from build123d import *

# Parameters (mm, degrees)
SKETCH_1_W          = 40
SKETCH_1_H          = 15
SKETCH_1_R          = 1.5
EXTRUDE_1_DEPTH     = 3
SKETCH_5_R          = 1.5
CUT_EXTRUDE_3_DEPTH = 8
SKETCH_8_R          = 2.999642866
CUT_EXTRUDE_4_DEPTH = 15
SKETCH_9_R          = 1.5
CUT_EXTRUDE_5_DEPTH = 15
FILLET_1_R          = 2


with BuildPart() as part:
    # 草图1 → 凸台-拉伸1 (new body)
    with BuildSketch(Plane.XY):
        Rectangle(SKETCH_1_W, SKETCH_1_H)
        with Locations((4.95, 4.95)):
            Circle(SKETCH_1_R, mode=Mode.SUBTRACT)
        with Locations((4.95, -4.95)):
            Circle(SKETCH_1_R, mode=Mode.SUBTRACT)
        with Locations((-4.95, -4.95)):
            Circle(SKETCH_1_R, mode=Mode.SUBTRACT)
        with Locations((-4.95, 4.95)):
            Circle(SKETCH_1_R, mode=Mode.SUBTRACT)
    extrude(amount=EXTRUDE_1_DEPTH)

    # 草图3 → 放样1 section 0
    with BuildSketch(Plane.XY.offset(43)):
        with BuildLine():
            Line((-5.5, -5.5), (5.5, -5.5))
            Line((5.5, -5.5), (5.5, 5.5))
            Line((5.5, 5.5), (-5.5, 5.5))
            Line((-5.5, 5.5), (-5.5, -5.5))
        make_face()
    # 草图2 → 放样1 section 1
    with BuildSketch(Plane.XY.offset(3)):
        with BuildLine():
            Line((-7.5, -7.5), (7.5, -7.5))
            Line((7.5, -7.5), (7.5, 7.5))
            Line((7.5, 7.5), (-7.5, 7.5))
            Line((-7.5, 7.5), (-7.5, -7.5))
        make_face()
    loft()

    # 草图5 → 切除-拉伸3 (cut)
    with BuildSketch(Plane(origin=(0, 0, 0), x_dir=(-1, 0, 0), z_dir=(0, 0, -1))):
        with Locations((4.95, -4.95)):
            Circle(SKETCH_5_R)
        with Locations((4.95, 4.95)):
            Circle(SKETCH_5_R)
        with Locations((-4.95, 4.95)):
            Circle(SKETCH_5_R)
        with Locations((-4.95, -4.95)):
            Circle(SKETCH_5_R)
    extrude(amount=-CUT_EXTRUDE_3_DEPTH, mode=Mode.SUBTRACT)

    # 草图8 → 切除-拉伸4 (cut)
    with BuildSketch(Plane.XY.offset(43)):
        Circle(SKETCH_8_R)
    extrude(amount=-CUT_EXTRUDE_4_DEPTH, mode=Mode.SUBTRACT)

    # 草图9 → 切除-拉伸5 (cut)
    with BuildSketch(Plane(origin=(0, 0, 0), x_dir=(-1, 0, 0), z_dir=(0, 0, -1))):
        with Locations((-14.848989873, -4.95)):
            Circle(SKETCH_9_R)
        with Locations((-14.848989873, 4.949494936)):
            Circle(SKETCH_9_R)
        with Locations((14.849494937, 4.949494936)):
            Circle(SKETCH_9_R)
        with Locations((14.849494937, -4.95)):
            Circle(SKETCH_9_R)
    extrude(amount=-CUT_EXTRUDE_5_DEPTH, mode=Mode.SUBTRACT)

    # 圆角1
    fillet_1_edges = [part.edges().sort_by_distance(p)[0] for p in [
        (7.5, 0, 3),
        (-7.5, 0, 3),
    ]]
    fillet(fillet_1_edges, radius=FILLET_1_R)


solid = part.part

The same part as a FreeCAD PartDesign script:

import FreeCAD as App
import Part
import Sketcher
from FreeCAD import Vector
Q = App.Units.Quantity


def edges_at(feature, points):
    """Names of the edges that pass closest to the given points."""
    edges = feature.Shape.Edges
    near = lambda p: min(range(len(edges)), key=lambda i: edges[i].distToShape(Part.Vertex(*p))[0])
    return sorted({f"Edge{near(p) + 1}" for p in points})

doc = App.newDocument("Part")
body = doc.addObject("PartDesign::Body", "Body")

# Sketch on XY plane
sketch1 = doc.addObject("Sketcher::SketchObject", "Sketch")
body.addObject(sketch1)
sketch1.AttachmentSupport = (doc.XY_Plane, [""])
sketch1.MapMode = "FlatFace"
sketch1.addGeometry([
    Part.LineSegment(Vector(-20, 7.5, 0), Vector(-20, -7.5, 0)),  # 0
    Part.LineSegment(Vector(-20, -7.5, 0), Vector(20, -7.5, 0)),  # 1
    Part.LineSegment(Vector(20, -7.5, 0), Vector(20, 7.5, 0)),  # 2
    Part.LineSegment(Vector(20, 7.5, 0), Vector(-20, 7.5, 0)),  # 3
    Part.Circle(Vector(-5, -5, 0), Vector(0, 0, 1), 1.5),  # 4
    Part.Circle(Vector(5, -5, 0), Vector(0, 0, 1), 1.5),  # 5
    Part.Circle(Vector(-5, 5, 0), Vector(0, 0, 1), 1.5),  # 6
    Part.Circle(Vector(5, 5, 0), Vector(0, 0, 1), 1.5),  # 7
], False)
sketch1.addConstraint([
    Sketcher.Constraint("Coincident", 0, 2, 1, 1),
    Sketcher.Constraint("Coincident", 1, 2, 2, 1),
    Sketcher.Constraint("Coincident", 2, 2, 3, 1),
    Sketcher.Constraint("Coincident", 3, 2, 0, 1),
    Sketcher.Constraint("Vertical", 0),
    Sketcher.Constraint("Horizontal", 1),
    Sketcher.Constraint("Vertical", 2),
    Sketcher.Constraint("Horizontal", 3),
    Sketcher.Constraint("Equal", 4, 5),
    Sketcher.Constraint("Equal", 5, 6),
    Sketcher.Constraint("Equal", 6, 7),
    Sketcher.Constraint("Symmetric", 5, 3, 6, 3, -1, 1),
    Sketcher.Constraint("Symmetric", 4, 3, 7, 3, -1, 1),
    Sketcher.Constraint("Symmetric", 0, 2, 2, 2, -1, 1),
    Sketcher.Constraint("Symmetric", 4, 3, 5, 3, -2),
    Sketcher.Constraint("Diameter", 4, Q("3 mm")),
    Sketcher.Constraint("DistanceX", 1, 1, 1, 2, Q("40 mm")),
    Sketcher.Constraint("DistanceY", 0, 2, 0, 1, Q("15 mm")),
    Sketcher.Constraint("DistanceX", 4, 3, 5, 3, Q("9.9 mm")),
    Sketcher.Constraint("DistanceY", 4, 3, 6, 3, Q("9.9 mm")),
])
pad1 = doc.addObject("PartDesign::Pad", "Pad")
body.addObject(pad1)
pad1.Profile = sketch1
pad1.Length = 3

# Sketch on XY plane
sketch2 = doc.addObject("Sketcher::SketchObject", "Sketch001")
body.addObject(sketch2)
sketch2.AttachmentSupport = (doc.XY_Plane, [""])
sketch2.MapMode = "FlatFace"
sketch2.AttachmentOffset = App.Placement(Vector(0, 0, 43), App.Rotation())
sketch2.addGeometry([
    Part.LineSegment(Vector(-6, -6, 0), Vector(6, -6, 0)),
    Part.LineSegment(Vector(6, -6, 0), Vector(6, 6, 0)),
    Part.LineSegment(Vector(6, 6, 0), Vector(-6, 6, 0)),
    Part.LineSegment(Vector(-6, 6, 0), Vector(-6, -6, 0)),
], False)
sketch2.addConstraint([
    Sketcher.Constraint("Coincident", 0, 2, 1, 1),
    Sketcher.Constraint("Coincident", 1, 2, 2, 1),
    Sketcher.Constraint("Coincident", 2, 2, 3, 1),
    Sketcher.Constraint("Coincident", 3, 2, 0, 1),
    Sketcher.Constraint("Horizontal", 0),
    Sketcher.Constraint("Vertical", 1),
    Sketcher.Constraint("Horizontal", 2),
    Sketcher.Constraint("Vertical", 3),
    Sketcher.Constraint("Symmetric", 0, 2, 2, 2, -1, 1),
    Sketcher.Constraint("Equal", 2, 1),
    Sketcher.Constraint("DistanceX", 0, 1, 0, 2, Q("11 mm")),
])

# Sketch on XY plane
sketch3 = doc.addObject("Sketcher::SketchObject", "Sketch002")
body.addObject(sketch3)
sketch3.AttachmentSupport = (doc.XY_Plane, [""])
sketch3.MapMode = "FlatFace"
sketch3.AttachmentOffset = App.Placement(Vector(0, 0, 3), App.Rotation())
sketch3.addGeometry([
    Part.LineSegment(Vector(-8, -8, 0), Vector(8, -8, 0)),
    Part.LineSegment(Vector(8, -8, 0), Vector(8, 8, 0)),
    Part.LineSegment(Vector(8, 8, 0), Vector(-8, 8, 0)),
    Part.LineSegment(Vector(-8, 8, 0), Vector(-8, -8, 0)),
], False)
sketch3.addConstraint([
    Sketcher.Constraint("Coincident", 0, 2, 1, 1),
    Sketcher.Constraint("Coincident", 1, 2, 2, 1),
    Sketcher.Constraint("Coincident", 2, 2, 3, 1),
    Sketcher.Constraint("Coincident", 3, 2, 0, 1),
    Sketcher.Constraint("Horizontal", 0),
    Sketcher.Constraint("Vertical", 1),
    Sketcher.Constraint("Horizontal", 2),
    Sketcher.Constraint("Vertical", 3),
    Sketcher.Constraint("Symmetric", 0, 2, 2, 2, -1, 1),
    Sketcher.Constraint("Equal", 2, 1),
    Sketcher.Constraint("DistanceX", 0, 1, 0, 2, Q("15 mm")),
])

additiveloft = doc.addObject("PartDesign::AdditiveLoft", "AdditiveLoft")
body.addObject(additiveloft)
additiveloft.Profile = sketch2
additiveloft.Sections = [sketch3]

# Sketch on XY plane
sketch4 = doc.addObject("Sketcher::SketchObject", "Sketch003")
body.addObject(sketch4)
sketch4.AttachmentSupport = (doc.XY_Plane, [""])
sketch4.MapMode = "FlatFace"
sketch4.addGeometry([
    Part.Circle(Vector(-5, -5, 0), Vector(0, 0, 1), 1.5),
    Part.Circle(Vector(-5, 5, 0), Vector(0, 0, 1), 1.5),
    Part.Circle(Vector(5, 5, 0), Vector(0, 0, 1), 1.5),
    Part.Circle(Vector(5, -5, 0), Vector(0, 0, 1), 1.5),
], False)
sketch4.addConstraint([
    Sketcher.Constraint("Equal", 0, 1),
    Sketcher.Constraint("Equal", 1, 2),
    Sketcher.Constraint("Equal", 2, 3),
    Sketcher.Constraint("Symmetric", 0, 3, 2, 3, -1, 1),
    Sketcher.Constraint("Symmetric", 1, 3, 3, 3, -1, 1),
    Sketcher.Constraint("Symmetric", 1, 3, 2, 3, -2),
    Sketcher.Constraint("Diameter", 0, Q("3 mm")),
    Sketcher.Constraint("DistanceY", 0, 3, 1, 3, Q("9.9 mm")),
    Sketcher.Constraint("DistanceX", 1, 3, 2, 3, Q("9.9 mm")),
])
pocket1 = doc.addObject("PartDesign::Pocket", "Pocket")
body.addObject(pocket1)
pocket1.Profile = sketch4
pocket1.Length = 8
pocket1.Reversed = True

# Sketch on XY plane
sketch5 = doc.addObject("Sketcher::SketchObject", "Sketch004")
body.addObject(sketch5)
sketch5.AttachmentSupport = (doc.XY_Plane, [""])
sketch5.MapMode = "FlatFace"
sketch5.AttachmentOffset = App.Placement(Vector(0, 0, 43), App.Rotation())
sketch5.addGeometry(Part.Circle(Vector(0, 0, 0), Vector(0, 0, 1), 3), False)
sketch5.addConstraint([
    Sketcher.Constraint("Coincident", 0, 3, -1, 1),
    Sketcher.Constraint("Diameter", 0, Q("5.999286 mm")),
])
pocket2 = doc.addObject("PartDesign::Pocket", "Pocket001")
body.addObject(pocket2)
pocket2.Profile = sketch5
pocket2.Length = 15

# Sketch on XY plane
sketch6 = doc.addObject("Sketcher::SketchObject", "Sketch005")
body.addObject(sketch6)
sketch6.AttachmentSupport = (doc.XY_Plane, [""])
sketch6.MapMode = "FlatFace"
sketch6.addGeometry([
    Part.Circle(Vector(14.8, -5, 0), Vector(0, 0, 1), 1.5),
    Part.Circle(Vector(14.8, 4.9, 0), Vector(0, 0, 1), 1.5),
    Part.Circle(Vector(-14.8, 4.9, 0), Vector(0, 0, 1), 1.5),
    Part.Circle(Vector(-14.8, -5, 0), Vector(0, 0, 1), 1.5),
], False)
sketch6.addConstraint([
    Sketcher.Constraint("Equal", 0, 1),
    Sketcher.Constraint("Equal", 1, 2),
    Sketcher.Constraint("Equal", 2, 3),
    Sketcher.Constraint("Horizontal", 1, 3, 2, 3),
    Sketcher.Constraint("Horizontal", 0, 3, 3, 3),
    Sketcher.Constraint("Vertical", 0, 3, 1, 3),
    Sketcher.Constraint("Vertical", 2, 3, 3, 3),
    Sketcher.Constraint("Diameter", 0, Q("3 mm")),
    Sketcher.Constraint("DistanceY", 0, 3, -1, 1, Q("4.95 mm")),
    Sketcher.Constraint("DistanceX", -1, 1, 0, 3, Q("14.84899 mm")),
    Sketcher.Constraint("DistanceY", -1, 1, 1, 3, Q("4.949495 mm")),
    Sketcher.Constraint("DistanceX", 2, 3, -1, 1, Q("14.849495 mm")),
])
pocket3 = doc.addObject("PartDesign::Pocket", "Pocket002")
body.addObject(pocket3)
pocket3.Profile = sketch6
pocket3.Length = 15
pocket3.Reversed = True
doc.recompute()

fillet = doc.addObject("PartDesign::Fillet", "Fillet")
body.addObject(fillet)
fillet.Base = (pocket3, edges_at(pocket3, [(7.5, 0, 3), (-7.5, 0, 3)]))
fillet.Radius = 2

doc.recompute()
